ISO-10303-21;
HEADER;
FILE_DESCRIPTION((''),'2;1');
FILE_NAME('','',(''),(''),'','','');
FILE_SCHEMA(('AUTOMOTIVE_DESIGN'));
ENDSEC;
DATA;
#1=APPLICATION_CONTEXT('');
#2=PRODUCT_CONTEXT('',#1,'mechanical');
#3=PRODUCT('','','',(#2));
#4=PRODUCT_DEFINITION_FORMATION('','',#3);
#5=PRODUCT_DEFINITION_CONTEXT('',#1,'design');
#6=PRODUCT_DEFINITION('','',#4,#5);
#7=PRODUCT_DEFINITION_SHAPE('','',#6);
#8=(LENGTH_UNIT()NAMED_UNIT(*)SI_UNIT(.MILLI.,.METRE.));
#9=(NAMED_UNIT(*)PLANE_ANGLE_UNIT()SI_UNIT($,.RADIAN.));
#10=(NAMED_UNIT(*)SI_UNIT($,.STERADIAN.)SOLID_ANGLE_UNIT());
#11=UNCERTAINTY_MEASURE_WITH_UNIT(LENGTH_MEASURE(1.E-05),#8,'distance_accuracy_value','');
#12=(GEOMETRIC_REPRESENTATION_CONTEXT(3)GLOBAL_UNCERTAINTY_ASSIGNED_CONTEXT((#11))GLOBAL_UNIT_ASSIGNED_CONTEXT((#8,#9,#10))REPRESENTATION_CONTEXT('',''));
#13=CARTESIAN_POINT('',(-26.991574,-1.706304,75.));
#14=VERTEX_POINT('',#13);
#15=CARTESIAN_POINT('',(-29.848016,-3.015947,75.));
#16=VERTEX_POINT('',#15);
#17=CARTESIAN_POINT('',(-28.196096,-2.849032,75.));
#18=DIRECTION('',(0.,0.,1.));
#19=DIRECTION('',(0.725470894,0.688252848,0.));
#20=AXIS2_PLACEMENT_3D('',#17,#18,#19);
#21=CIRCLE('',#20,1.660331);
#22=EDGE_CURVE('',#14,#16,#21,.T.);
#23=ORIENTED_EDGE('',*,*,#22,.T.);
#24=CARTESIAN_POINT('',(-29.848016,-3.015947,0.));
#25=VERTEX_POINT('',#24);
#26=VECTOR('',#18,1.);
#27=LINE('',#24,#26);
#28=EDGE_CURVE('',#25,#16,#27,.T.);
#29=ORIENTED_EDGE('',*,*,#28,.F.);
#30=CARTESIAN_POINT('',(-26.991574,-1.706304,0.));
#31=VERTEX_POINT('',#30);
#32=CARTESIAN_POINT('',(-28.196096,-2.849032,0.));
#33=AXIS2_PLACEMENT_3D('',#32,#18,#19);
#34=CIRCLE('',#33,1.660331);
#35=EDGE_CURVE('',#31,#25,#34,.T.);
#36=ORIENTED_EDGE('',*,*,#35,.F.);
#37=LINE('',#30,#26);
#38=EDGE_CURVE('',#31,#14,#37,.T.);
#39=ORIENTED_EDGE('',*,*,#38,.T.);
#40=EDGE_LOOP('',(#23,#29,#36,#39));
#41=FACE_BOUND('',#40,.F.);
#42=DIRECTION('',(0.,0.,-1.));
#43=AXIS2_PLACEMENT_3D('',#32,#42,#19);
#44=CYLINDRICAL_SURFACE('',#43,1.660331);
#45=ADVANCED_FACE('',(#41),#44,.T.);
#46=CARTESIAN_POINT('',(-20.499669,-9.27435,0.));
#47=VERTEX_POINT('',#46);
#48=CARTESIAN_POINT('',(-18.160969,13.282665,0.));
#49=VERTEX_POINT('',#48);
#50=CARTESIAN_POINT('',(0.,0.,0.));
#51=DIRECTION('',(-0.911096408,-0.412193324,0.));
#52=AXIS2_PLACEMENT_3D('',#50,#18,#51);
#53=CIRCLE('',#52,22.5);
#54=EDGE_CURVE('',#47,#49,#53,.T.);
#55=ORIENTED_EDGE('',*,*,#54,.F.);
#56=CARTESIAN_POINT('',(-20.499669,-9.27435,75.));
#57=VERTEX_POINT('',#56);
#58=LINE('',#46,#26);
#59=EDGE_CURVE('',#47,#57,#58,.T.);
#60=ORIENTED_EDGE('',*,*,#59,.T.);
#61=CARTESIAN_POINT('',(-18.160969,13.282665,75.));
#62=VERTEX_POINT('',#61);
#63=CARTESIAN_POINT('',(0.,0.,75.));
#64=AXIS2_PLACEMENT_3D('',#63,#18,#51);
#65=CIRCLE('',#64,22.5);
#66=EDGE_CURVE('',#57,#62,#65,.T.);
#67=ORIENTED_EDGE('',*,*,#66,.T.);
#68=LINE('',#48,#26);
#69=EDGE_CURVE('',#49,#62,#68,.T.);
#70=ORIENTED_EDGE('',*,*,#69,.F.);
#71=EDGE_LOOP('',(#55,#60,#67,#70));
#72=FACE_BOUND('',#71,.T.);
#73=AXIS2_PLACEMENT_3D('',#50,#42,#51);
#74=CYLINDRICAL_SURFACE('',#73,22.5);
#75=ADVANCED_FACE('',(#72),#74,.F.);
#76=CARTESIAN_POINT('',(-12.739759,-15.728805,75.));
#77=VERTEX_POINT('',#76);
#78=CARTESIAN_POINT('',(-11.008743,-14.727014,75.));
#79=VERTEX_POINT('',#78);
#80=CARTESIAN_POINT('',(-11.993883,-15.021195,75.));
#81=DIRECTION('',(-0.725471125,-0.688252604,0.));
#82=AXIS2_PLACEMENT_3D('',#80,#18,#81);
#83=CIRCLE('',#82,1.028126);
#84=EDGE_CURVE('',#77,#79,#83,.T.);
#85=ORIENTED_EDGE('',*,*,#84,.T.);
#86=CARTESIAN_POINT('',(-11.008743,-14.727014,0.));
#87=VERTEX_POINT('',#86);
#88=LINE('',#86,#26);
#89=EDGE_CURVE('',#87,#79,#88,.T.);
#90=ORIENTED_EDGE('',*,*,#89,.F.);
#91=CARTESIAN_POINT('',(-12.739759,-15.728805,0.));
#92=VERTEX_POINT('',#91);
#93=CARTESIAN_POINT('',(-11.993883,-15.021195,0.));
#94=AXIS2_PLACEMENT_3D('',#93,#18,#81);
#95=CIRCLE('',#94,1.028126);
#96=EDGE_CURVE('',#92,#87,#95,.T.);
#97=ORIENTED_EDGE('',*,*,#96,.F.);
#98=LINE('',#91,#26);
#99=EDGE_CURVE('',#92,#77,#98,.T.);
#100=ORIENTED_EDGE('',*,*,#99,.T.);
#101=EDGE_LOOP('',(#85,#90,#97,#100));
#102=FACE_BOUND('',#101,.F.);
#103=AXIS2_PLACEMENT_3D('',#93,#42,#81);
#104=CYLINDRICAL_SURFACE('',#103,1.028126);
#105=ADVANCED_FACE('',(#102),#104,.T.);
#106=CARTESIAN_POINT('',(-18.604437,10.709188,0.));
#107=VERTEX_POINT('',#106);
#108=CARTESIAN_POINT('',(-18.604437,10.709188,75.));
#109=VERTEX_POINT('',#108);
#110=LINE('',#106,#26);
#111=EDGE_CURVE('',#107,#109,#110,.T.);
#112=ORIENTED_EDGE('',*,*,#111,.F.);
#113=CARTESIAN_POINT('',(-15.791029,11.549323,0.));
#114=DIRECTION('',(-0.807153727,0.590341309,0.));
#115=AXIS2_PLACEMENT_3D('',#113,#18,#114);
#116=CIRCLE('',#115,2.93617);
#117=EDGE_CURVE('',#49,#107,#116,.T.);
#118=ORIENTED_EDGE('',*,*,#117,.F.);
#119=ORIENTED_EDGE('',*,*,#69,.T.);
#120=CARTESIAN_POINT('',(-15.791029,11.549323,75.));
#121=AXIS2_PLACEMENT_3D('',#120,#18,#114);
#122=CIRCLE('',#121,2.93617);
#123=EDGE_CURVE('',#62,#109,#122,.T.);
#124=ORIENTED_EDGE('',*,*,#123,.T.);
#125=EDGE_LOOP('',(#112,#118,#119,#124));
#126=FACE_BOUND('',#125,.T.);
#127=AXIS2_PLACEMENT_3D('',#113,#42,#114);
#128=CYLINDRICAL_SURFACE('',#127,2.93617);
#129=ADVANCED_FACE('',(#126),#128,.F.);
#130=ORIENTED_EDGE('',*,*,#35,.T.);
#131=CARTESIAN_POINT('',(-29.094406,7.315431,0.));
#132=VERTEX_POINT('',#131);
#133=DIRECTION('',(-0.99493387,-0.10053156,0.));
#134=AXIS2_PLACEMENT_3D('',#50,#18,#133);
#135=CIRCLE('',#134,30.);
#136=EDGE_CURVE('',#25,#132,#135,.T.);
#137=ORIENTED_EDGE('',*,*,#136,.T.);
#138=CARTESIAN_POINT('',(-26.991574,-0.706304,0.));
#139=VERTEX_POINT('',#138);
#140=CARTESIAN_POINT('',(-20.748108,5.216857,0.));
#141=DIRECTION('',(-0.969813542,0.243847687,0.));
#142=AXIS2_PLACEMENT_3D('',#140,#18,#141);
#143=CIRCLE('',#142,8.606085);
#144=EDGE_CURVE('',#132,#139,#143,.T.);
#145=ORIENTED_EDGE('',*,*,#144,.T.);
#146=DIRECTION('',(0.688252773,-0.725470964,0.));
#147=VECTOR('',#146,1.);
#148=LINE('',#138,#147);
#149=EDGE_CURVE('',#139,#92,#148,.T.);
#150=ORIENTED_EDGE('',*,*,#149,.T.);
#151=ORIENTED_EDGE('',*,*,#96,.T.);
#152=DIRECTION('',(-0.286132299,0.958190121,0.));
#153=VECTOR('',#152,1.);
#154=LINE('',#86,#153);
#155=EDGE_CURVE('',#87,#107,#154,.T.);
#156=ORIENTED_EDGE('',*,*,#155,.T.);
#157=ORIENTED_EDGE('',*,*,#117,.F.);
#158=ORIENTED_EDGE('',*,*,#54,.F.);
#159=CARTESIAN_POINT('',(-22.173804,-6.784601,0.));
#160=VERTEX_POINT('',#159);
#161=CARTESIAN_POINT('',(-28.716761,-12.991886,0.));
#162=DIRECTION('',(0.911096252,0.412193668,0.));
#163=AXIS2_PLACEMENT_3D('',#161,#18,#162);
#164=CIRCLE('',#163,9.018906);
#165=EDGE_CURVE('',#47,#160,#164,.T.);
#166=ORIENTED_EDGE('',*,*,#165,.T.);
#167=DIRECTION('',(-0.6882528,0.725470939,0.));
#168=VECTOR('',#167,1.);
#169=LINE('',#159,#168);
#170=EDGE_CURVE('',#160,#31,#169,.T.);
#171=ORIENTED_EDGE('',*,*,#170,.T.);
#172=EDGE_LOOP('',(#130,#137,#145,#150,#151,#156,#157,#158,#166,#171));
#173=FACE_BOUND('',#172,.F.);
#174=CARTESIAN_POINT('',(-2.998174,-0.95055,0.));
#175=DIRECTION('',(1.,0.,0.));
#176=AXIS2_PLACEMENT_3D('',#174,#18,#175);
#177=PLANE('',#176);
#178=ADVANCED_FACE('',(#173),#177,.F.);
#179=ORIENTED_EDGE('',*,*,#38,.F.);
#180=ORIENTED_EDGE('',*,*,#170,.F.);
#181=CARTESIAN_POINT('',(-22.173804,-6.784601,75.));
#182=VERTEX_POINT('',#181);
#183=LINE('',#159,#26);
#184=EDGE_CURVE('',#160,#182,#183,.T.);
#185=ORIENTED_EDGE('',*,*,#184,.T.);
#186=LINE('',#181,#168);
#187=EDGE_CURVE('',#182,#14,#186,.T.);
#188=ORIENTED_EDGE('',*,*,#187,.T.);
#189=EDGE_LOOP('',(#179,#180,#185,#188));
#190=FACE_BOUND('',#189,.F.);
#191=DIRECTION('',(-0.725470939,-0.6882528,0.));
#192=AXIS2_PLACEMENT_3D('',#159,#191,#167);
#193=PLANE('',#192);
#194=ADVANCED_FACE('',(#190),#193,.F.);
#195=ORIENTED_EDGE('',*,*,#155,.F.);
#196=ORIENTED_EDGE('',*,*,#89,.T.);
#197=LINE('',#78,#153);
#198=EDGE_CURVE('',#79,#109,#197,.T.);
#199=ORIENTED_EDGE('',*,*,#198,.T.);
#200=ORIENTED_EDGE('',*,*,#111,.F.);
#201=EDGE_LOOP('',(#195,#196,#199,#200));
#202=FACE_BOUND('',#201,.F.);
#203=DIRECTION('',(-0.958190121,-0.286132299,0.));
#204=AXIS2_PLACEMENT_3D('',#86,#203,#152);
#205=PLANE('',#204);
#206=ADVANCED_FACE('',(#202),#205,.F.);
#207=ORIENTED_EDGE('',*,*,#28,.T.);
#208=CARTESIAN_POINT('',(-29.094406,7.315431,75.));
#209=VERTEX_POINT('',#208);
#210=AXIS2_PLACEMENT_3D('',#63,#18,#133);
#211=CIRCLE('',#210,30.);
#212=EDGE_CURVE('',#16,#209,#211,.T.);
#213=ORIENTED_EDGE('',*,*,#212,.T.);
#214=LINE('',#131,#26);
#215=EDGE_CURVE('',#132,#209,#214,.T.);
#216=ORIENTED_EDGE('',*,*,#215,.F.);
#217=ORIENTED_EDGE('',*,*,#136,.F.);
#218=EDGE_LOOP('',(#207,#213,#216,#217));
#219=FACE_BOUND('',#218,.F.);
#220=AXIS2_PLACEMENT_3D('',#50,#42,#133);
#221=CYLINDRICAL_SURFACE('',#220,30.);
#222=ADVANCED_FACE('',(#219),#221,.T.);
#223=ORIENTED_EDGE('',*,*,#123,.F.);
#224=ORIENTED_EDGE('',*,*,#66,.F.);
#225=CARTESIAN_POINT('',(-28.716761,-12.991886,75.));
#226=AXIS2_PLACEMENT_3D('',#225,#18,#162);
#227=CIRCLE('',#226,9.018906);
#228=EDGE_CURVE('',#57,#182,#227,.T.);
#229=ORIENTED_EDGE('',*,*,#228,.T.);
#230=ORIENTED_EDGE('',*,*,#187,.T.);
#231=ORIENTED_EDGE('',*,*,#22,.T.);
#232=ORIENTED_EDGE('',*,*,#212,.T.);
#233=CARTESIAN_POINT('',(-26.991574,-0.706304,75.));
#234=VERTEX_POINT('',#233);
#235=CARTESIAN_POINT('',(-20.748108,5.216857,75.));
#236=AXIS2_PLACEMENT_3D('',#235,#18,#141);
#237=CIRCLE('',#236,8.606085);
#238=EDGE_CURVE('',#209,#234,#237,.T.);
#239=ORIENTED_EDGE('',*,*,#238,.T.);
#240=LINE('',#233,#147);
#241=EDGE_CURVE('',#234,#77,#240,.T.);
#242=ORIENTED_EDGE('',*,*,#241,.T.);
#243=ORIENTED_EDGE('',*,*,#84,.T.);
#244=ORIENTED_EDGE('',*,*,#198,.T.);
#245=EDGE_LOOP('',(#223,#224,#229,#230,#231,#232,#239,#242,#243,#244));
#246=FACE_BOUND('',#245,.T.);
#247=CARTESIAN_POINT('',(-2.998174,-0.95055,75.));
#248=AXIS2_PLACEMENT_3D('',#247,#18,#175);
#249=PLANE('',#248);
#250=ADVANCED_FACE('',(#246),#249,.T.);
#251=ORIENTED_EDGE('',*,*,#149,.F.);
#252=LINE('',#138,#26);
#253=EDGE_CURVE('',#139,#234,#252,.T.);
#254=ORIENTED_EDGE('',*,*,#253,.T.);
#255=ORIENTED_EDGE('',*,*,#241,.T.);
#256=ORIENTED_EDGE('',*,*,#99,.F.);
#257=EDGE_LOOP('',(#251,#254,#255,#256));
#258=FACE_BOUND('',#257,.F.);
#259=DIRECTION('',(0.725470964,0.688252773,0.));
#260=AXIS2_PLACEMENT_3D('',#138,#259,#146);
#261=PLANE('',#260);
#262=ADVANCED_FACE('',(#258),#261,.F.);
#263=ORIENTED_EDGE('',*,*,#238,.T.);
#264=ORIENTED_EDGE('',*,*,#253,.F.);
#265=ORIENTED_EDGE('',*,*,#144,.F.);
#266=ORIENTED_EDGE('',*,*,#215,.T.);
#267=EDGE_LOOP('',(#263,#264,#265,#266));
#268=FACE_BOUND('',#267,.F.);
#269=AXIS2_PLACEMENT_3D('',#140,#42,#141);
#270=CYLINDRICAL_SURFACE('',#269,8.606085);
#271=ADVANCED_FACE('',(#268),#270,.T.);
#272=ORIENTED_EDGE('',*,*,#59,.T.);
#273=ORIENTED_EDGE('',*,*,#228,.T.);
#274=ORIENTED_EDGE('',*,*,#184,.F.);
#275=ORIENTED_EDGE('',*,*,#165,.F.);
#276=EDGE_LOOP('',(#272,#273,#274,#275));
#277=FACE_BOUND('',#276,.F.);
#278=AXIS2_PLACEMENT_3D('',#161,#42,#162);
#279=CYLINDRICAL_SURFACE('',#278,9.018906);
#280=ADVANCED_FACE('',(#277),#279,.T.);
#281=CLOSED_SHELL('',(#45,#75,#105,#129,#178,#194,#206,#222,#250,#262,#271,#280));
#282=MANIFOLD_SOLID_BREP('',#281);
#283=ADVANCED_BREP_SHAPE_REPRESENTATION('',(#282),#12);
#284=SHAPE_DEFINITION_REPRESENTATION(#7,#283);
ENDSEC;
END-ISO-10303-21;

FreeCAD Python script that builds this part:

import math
import FreeCAD as App
import Part
import Sketcher
Q = App.Units.Quantity

doc = App.newDocument("Part")
params = doc.addObject("Spreadsheet::Sheet", "Params")
for row, (alias, value) in enumerate([
    ("sketch1_radius", "30 mm"),
    ("sketch1_radius2", "22.5 mm"),
    ("sketch1_length", "7.000001 mm"),
    ("pad1_length", "75 mm"),
], start=1):
    params.set(f"A{row}", alias)
    params.set(f"B{row}", "=" + value)
    params.setAlias(f"B{row}", alias)

body = doc.addObject("PartDesign::Body", "Body")

# Sketch on XY plane
sketch1 = body.newObject("Sketcher::SketchObject", "Sketch")
sketch1.AttachmentSupport = (doc.getObject("XY_Plane"), [""])
sketch1.MapMode = "FlatFace"
sketch1.addGeometry(Part.ArcOfCircle(Part.Circle(App.Vector(0, 0, 0), App.Vector(0, 0, 1), 30), math.radians(-174.230219), math.radians(165.886253)), False)
sketch1.addGeometry(Part.ArcOfCircle(Part.Circle(App.Vector(-20.748108, 5.216857, 0), App.Vector(0, 0, 1), 8.606085), math.radians(165.886254), math.radians(223.491949)), False)
sketch1.addGeometry(Part.LineSegment(App.Vector(-26.991574, -0.706304, 0), App.Vector(-12.739759, -15.728805, 0)), False)
sketch1.addGeometry(Part.ArcOfCircle(Part.Circle(App.Vector(-11.993883, -15.021195, 0), App.Vector(0, 0, 1), 1.028126), math.radians(-136.508054), math.radians(16.626568)), False)
sketch1.addGeometry(Part.LineSegment(App.Vector(-11.008743, -14.727014, 0), App.Vector(-18.604437, 10.709188, 0)), False)
sketch1.addGeometry(Part.ArcOfCircle(Part.Circle(App.Vector(-15.791029, 11.549323, 0), App.Vector(0, 0, 1), 2.93617), math.radians(143.818768), math.radians(196.626577)), False)
sketch1.addGeometry(Part.ArcOfCircle(Part.Circle(App.Vector(0, 0, 0), App.Vector(0, 0, 1), 22.5), math.radians(-155.657309), math.radians(143.818812)), False)
sketch1.addGeometry(Part.ArcOfCircle(Part.Circle(App.Vector(-28.716761, -12.991886, 0), App.Vector(0, 0, 1), 9.018906), math.radians(24.342712), math.radians(43.491941)), False)
sketch1.addGeometry(Part.LineSegment(App.Vector(-22.173804, -6.784601, 0), App.Vector(-26.991574, -1.706304, 0)), False)
sketch1.addGeometry(Part.ArcOfCircle(Part.Circle(App.Vector(-28.196096, -2.849032, 0), App.Vector(0, 0, 1), 1.660331), math.radians(43.491965), math.radians(185.769764)), False)
sketch1.addConstraint(Sketcher.Constraint("Coincident", 0, 2, 1, 1))
sketch1.addConstraint(Sketcher.Constraint("Coincident", 1, 2, 2, 1))
sketch1.addConstraint(Sketcher.Constraint("Coincident", 2, 2, 3, 1))
sketch1.addConstraint(Sketcher.Constraint("Coincident", 3, 2, 4, 1))
sketch1.addConstraint(Sketcher.Constraint("Coincident", 4, 2, 5, 2))
sketch1.addConstraint(Sketcher.Constraint("Coincident", 5, 1, 6, 2))
sketch1.addConstraint(Sketcher.Constraint("Coincident", 6, 1, 7, 1))
sketch1.addConstraint(Sketcher.Constraint("Coincident", 7, 2, 8, 1))
sketch1.addConstraint(Sketcher.Constraint("Coincident", 8, 2, 9, 1))
sketch1.addConstraint(Sketcher.Constraint("Coincident", 9, 2, 0, 1))
sketch1.addConstraint(Sketcher.Constraint("Coincident", 0, 3, -1, 1))
sketch1.addConstraint(Sketcher.Constraint("Coincident", 6, 3, -1, 1))
sketch1.addConstraint(Sketcher.Constraint("Radius", 0, Q("30 mm")))
sketch1.addConstraint(Sketcher.Constraint("Radius", 6, Q("22.5 mm")))
sketch1.addConstraint(Sketcher.Constraint("Distance", 8, Q("7.000001 mm")))
sketch1.addConstraint(Sketcher.Constraint("DistanceY", 8, 2, 1, 2, Q("1 mm")))
sketch1.addConstraint(Sketcher.Constraint("Radius", 5, Q("2.93617 mm")))
sketch1.addConstraint(Sketcher.Constraint("Radius", 9, Q("1.660331 mm")))
sketch1.addConstraint(Sketcher.Constraint("Radius", 1, Q("8.606085 mm")))
sketch1.addConstraint(Sketcher.Constraint("Radius", 3, Q("1.028126 mm")))
sketch1.addConstraint(Sketcher.Constraint("Radius", 7, Q("9.018906 mm")))
sketch1.addConstraint(Sketcher.Constraint("DistanceX", 7, 3, 2, 2, Q("15.977002 mm")))
sketch1.addConstraint(Sketcher.Constraint("DistanceY", 7, 2, -1, 1, Q("6.784601 mm")))
sketch1.addConstraint(Sketcher.Constraint("DistanceX", 0, 2, 1, 3, Q("8.346298 mm")))
sketch1.addConstraint(Sketcher.Constraint("Distance", 2, Q("20.707239 mm")))
sketch1.addConstraint(Sketcher.Constraint("Distance", 4, Q("26.546091 mm")))
sketch1.addConstraint(Sketcher.Constraint("DistanceX", 5, 3, -1, 1, Q("15.791029 mm")))
sketch1.addConstraint(Sketcher.Constraint("DistanceX", 7, 3, -1, 1, Q("28.716761 mm")))
sketch1.addConstraint(Sketcher.Constraint("DistanceY", 9, 3, -1, 1, Q("2.849032 mm")))
sketch1.addConstraint(Sketcher.Constraint("DistanceY", -1, 1, 0, 2, Q("7.315431 mm")))
sketch1.addConstraint(Sketcher.Constraint("DistanceX", 5, 1, -1, 1, Q("18.160969 mm")))
sketch1.addConstraint(Sketcher.Constraint("DistanceX", 6, 1, -1, 1, Q("20.499669 mm")))
sketch1.addConstraint(Sketcher.Constraint("DistanceY", 3, 3, 1, 3, Q("20.238051 mm")))
sketch1.addConstraint(Sketcher.Constraint("DistanceX", 3, 3, 3, 2, Q("0.98514 mm")))
sketch1.addConstraint(Sketcher.Constraint("DistanceX", 9, 2, 9, 3, Q("1.65192 mm")))
sketch1.setExpression("Constraints[12]", "Params.sketch1_radius")
sketch1.setExpression("Constraints[13]", "Params.sketch1_radius2")
sketch1.setExpression("Constraints[14]", "Params.sketch1_length")
pad1 = body.newObject("PartDesign::Pad", "Pad")
pad1.Profile = sketch1
pad1.setExpression("Length", "Params.pad1_length")

doc.recompute()
